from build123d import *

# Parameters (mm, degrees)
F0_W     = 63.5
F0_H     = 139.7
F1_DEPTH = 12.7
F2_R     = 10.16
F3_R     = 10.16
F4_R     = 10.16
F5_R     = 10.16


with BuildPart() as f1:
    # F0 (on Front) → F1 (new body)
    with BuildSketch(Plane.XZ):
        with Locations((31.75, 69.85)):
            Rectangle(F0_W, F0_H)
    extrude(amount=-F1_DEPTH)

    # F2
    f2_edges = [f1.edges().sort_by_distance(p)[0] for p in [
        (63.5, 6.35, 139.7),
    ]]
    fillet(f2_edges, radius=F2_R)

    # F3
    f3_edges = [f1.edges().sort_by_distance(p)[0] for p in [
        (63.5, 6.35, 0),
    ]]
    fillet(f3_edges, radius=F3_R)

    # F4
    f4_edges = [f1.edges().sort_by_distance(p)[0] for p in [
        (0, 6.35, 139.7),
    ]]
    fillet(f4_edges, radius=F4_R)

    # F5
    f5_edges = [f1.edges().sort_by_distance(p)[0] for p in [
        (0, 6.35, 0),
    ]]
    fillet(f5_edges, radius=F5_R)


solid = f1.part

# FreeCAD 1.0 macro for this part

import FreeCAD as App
import Part
import Sketcher
from FreeCAD import Vector
Q = App.Units.Quantity


def edges_at(feature, points):
    """Names of the edges that pass closest to the given points."""
    edges = feature.Shape.Edges
    near = lambda p: min(range(len(edges)), key=lambda i: edges[i].distToShape(Part.Vertex(*p))[0])
    return sorted({f"Edge{near(p) + 1}" for p in points})


def add_polygon(sketch, points):
    """Adds a closed chain of lines whose ends are joined by coincident constraints."""
    first, n = sketch.GeometryCount, len(points)
    for a, b in zip(points, points[1:] + points[:1]):
        sketch.addGeometry(Part.LineSegment(App.Vector(*a, 0), App.Vector(*b, 0)), False)
    for i in range(n):
        sketch.addConstraint(Sketcher.Constraint("Coincident", first + i, 2, first + (i + 1) % n, 1))

doc = App.newDocument("Part")
body = doc.addObject("PartDesign::Body", "Body")

# Sketch on XZ plane
sketch1 = body.newObject("Sketcher::SketchObject", "Sketch")
sketch1.AttachmentSupport = (doc.getObject("XZ_Plane"), [""])
sketch1.MapMode = "FlatFace"
add_polygon(sketch1, [(0, 139.7), (0, 0), (63.5, 0), (63.5, 139.7)])  # lines 0-3
sketch1.addConstraint(Sketcher.Constraint("Vertical", 0))
sketch1.addConstraint(Sketcher.Constraint("Horizontal", 1))
sketch1.addConstraint(Sketcher.Constraint("Vertical", 2))
sketch1.addConstraint(Sketcher.Constraint("Horizontal", 3))
sketch1.addConstraint(Sketcher.Constraint("Coincident", 0, 2, -1, 1))
sketch1.addConstraint(Sketcher.Constraint("DistanceX", 1, 1, 1, 2, Q("2.5 in")))
sketch1.addConstraint(Sketcher.Constraint("DistanceY", 0, 2, 0, 1, Q("5.5 in")))
pad1 = body.newObject("PartDesign::Pad", "Pad")
pad1.Profile = sketch1
pad1.Length = Q("0.5 in")
pad1.Reversed = True
doc.recompute()

fillet = body.newObject("PartDesign::Fillet", "Fillet")
fillet.Base = (pad1, edges_at(pad1, [(63.5, 6.35, 139.7)]))
fillet.Radius = Q("0.4 in")
doc.recompute()

fillet2 = body.newObject("PartDesign::Fillet", "Fillet001")
fillet2.Base = (fillet, edges_at(fillet, [(63.5, 6.35, 0)]))
fillet2.Radius = Q("0.4 in")
doc.recompute()

fillet3 = body.newObject("PartDesign::Fillet", "Fillet002")
fillet3.Base = (fillet2, edges_at(fillet2, [(0, 6.35, 139.7)]))
fillet3.Radius = Q("0.4 in")
doc.recompute()

fillet4 = body.newObject("PartDesign::Fillet", "Fillet003")
fillet4.Base = (fillet3, edges_at(fillet3, [(0, 6.35, 0)]))
fillet4.Radius = Q("0.4 in")

doc.recompute()
